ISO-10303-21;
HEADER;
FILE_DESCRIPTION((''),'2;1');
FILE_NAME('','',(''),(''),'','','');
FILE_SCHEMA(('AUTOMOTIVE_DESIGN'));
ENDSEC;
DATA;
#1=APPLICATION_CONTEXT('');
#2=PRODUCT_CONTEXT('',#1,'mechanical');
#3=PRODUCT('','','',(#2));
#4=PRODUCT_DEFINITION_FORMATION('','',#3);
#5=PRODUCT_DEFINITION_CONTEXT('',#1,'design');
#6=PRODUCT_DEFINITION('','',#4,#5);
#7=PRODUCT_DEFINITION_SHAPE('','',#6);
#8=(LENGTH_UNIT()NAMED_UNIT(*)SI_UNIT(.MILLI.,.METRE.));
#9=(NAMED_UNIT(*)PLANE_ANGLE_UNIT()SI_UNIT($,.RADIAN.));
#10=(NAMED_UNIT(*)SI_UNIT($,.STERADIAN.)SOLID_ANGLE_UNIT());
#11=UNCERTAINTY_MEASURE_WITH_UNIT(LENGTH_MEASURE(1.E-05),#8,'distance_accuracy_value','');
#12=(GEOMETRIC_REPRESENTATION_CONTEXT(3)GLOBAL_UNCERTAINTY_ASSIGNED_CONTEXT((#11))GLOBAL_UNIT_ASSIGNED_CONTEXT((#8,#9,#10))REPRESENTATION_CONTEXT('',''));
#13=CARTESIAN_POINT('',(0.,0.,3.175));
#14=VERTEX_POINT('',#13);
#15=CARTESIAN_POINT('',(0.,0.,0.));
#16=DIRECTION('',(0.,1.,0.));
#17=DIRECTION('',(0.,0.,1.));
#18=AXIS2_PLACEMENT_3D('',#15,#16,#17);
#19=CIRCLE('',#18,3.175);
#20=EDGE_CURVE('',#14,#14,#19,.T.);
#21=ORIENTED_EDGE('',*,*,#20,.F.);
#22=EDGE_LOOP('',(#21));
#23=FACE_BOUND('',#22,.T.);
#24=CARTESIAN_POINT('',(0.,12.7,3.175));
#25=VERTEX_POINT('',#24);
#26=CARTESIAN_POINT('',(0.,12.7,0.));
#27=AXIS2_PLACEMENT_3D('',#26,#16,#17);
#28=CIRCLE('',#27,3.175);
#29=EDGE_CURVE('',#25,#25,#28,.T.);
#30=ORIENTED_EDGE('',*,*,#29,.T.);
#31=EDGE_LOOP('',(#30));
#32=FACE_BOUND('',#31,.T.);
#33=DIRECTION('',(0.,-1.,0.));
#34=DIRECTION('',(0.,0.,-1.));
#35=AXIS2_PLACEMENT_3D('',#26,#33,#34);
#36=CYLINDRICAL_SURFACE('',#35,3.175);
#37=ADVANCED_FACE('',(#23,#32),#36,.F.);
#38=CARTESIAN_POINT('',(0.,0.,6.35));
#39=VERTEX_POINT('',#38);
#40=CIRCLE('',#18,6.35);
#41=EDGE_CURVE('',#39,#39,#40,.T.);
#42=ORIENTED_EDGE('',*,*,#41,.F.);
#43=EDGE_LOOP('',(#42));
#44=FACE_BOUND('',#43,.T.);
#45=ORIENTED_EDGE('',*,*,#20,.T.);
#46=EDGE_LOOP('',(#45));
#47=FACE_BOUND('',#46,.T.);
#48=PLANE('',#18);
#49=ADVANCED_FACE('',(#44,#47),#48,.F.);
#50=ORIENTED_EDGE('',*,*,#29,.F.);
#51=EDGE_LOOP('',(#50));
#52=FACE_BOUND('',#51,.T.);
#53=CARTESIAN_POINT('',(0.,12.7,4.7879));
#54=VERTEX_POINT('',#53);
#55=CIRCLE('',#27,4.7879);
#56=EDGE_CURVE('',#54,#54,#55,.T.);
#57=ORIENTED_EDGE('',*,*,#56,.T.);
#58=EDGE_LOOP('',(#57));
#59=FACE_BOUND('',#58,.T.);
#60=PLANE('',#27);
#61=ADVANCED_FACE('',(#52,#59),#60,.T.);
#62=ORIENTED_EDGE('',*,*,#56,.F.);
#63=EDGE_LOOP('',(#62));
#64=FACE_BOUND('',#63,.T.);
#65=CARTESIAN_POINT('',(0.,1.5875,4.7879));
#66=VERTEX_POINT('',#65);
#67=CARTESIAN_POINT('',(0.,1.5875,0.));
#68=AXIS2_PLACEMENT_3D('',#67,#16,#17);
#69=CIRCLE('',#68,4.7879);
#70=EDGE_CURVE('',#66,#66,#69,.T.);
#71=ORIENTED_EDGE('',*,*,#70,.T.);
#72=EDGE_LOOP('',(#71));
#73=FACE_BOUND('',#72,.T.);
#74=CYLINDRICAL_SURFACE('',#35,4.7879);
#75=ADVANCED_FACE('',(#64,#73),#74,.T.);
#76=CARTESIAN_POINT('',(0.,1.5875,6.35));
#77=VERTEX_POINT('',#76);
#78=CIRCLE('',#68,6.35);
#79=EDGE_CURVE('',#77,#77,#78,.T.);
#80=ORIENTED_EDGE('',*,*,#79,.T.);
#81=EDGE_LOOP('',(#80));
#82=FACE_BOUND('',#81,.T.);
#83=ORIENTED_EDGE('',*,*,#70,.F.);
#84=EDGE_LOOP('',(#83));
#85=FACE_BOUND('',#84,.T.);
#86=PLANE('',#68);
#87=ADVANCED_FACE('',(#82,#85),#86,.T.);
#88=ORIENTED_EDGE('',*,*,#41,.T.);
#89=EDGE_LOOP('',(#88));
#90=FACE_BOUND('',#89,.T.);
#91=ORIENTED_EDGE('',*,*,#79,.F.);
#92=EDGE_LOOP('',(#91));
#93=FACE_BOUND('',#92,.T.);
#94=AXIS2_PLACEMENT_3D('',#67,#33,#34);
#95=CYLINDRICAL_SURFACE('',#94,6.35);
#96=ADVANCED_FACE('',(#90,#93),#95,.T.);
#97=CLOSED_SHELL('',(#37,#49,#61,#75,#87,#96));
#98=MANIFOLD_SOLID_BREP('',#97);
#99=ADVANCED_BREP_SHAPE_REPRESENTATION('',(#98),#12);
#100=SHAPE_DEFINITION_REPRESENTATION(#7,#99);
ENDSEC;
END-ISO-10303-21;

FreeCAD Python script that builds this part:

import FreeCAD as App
import Part
import Sketcher
from FreeCAD import Vector
Q = App.Units.Quantity

doc = App.newDocument("Part")
body = doc.addObject("PartDesign::Body", "Body")

sketch1 = doc.addObject("Sketcher::SketchObject", "Sketch")
body.addObject(sketch1)
sketch1.AttachmentSupport = (doc.XZ_Plane, [""])
sketch1.MapMode = "FlatFace"
sketch1.addGeometry([
    Part.Circle(Vector(0, 0, 0), Vector(0, 0, 1), 4.8),
    Part.Circle(Vector(0, 0, 0), Vector(0, 0, 1), 3.2),
], False)
sketch1.addConstraint([
    Sketcher.Constraint("Coincident", 0, 3, -1, 1),
    Sketcher.Constraint("Coincident", 1, 3, -1, 1),
    Sketcher.Constraint("Diameter", 1, Q("0.25 in")),
    Sketcher.Constraint("Diameter", 0, Q("0.377 in")),
])
pad1 = doc.addObject("PartDesign::Pad", "Pad")
body.addObject(pad1)
pad1.Profile = sketch1
pad1.Length = Q("0.5 in")
pad1.Reversed = True

sketch2 = doc.addObject("Sketcher::SketchObject", "Sketch001")
body.addObject(sketch2)
sketch2.AttachmentSupport = (doc.XZ_Plane, [""])
sketch2.MapMode = "FlatFace"
sketch2.addGeometry([
    Part.Circle(Vector(0, 0, 0), Vector(0, 0, 1), 6.3),
    Part.Circle(Vector(0, 0, 0), Vector(0, 0, 1), 4.8),
], False)
sketch2.addConstraint([
    Sketcher.Constraint("Coincident", 0, 3, -1, 1),
    Sketcher.Constraint("Coincident", 1, 3, -1, 1),
    Sketcher.Constraint("Diameter", 0, Q("0.5 in")),
    Sketcher.Constraint("Diameter", 1, Q("0.377 in")),
])
pad2 = doc.addObject("PartDesign::Pad", "Pad001")
body.addObject(pad2)
pad2.Profile = sketch2
pad2.Length = Q("0.0625 in")
pad2.Reversed = True

doc.recompute()
